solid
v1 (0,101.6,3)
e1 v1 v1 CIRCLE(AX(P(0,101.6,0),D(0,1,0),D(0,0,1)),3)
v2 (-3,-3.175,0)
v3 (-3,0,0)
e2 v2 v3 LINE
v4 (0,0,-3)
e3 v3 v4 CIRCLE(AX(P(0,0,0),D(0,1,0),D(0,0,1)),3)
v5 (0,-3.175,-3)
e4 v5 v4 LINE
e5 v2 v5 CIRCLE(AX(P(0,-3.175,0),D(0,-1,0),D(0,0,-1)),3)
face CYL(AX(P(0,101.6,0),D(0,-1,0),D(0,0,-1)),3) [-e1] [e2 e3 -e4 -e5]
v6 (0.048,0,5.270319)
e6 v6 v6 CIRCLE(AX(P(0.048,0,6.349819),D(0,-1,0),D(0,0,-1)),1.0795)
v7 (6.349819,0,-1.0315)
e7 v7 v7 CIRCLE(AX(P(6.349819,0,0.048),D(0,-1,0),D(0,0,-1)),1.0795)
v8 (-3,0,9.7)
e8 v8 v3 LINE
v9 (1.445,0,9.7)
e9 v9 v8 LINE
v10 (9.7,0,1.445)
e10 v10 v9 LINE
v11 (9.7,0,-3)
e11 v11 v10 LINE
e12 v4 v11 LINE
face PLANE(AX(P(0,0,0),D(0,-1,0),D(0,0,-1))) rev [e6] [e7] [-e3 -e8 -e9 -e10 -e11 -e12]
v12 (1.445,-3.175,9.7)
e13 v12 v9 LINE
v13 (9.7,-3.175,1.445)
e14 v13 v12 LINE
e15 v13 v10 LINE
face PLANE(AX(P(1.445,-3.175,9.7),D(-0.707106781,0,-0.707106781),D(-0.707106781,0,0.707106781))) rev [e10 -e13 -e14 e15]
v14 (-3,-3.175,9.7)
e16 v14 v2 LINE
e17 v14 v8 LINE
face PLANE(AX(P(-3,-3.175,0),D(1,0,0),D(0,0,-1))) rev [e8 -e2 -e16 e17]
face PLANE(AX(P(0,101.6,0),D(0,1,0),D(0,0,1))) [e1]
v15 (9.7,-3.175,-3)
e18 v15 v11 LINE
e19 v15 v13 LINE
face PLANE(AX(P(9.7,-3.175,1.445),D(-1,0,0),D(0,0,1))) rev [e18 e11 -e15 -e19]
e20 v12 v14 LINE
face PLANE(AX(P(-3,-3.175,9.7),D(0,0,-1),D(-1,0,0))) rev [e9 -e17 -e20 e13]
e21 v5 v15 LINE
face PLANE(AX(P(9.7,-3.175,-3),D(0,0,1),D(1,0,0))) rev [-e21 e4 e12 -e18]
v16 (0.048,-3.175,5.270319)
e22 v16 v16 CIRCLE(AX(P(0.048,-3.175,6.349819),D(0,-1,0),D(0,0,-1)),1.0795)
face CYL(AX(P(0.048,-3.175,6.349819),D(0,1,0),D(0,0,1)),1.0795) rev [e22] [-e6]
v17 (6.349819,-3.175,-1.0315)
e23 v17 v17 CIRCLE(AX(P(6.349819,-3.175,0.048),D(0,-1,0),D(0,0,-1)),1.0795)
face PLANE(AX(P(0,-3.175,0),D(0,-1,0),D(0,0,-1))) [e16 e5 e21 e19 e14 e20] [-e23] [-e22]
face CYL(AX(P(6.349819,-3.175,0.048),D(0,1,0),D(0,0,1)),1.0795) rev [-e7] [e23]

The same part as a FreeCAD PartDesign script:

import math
import FreeCAD as App
import Part
import Sketcher

V = App.Vector
Q = App.Units.Quantity

doc = App.newDocument("Part")
body = doc.addObject("PartDesign::Body", "Body")

# Sketch on XZ plane
sketch1 = body.newObject("Sketcher::SketchObject", "Sketch")
sketch1.AttachmentSupport = (doc.getObject("XZ_Plane"), [""])
sketch1.MapMode = "FlatFace"
sketch1.addGeometry(Part.Circle(V(0, 0, 0), V(0, 0, 1), 3), False)
sketch1.addConstraint(Sketcher.Constraint("Coincident", 0, 3, -1, 1))
sketch1.addConstraint(Sketcher.Constraint("Diameter", 0, Q("6 mm")))
pad1 = body.newObject("PartDesign::Pad", "Pad")
pad1.Profile = sketch1
pad1.Length = Q("4 in")
pad1.Reversed = True

# Sketch on XZ plane
sketch2 = body.newObject("Sketcher::SketchObject", "Sketch001")
sketch2.AttachmentSupport = (doc.getObject("XZ_Plane"), [""])
sketch2.MapMode = "FlatFace"
sketch2.AttachmentOffset = App.Placement(V(0, 0, 0.125 * 25.4), App.Rotation())
sketch2.addGeometry(Part.LineSegment(V(-3, 9.7, 0), V(-3, 0, 0)), False)
sketch2.addGeometry(Part.ArcOfCircle(Part.Circle(V(0, 0, 0), V(0, 0, 1), 3), math.radians(180), math.radians(270)), False)
sketch2.addGeometry(Part.LineSegment(V(0, -3, 0), V(9.7, -3, 0)), False)
sketch2.addGeometry(Part.LineSegment(V(9.7, -3, 0), V(9.7, 1.4, 0)), False)
sketch2.addGeometry(Part.LineSegment(V(9.7, 1.4, 0), V(1.4, 9.7, 0)), False)
sketch2.addGeometry(Part.LineSegment(V(1.4, 9.7, 0), V(-3, 9.7, 0)), False)
sketch2.addGeometry(Part.Circle(V(6.3, 0, 0), V(0, 0, 1), 1.1), False)
sketch2.addGeometry(Part.Circle(V(0, 6.3, 0), V(0, 0, 1), 1.1), False)
sketch2.addConstraint(Sketcher.Constraint("Tangent", 0, 2, 1, 1))
sketch2.addConstraint(Sketcher.Constraint("Tangent", 1, 2, 2, 1))
sketch2.addConstraint(Sketcher.Constraint("Coincident", 2, 2, 3, 1))
sketch2.addConstraint(Sketcher.Constraint("Coincident", 3, 2, 4, 1))
sketch2.addConstraint(Sketcher.Constraint("Coincident", 4, 2, 5, 1))
sketch2.addConstraint(Sketcher.Constraint("Coincident", 5, 2, 0, 1))
sketch2.addConstraint(Sketcher.Constraint("Vertical", 0))
sketch2.addConstraint(Sketcher.Constraint("Horizontal", 2))
sketch2.addConstraint(Sketcher.Constraint("Vertical", 3))
sketch2.addConstraint(Sketcher.Constraint("Horizontal", 5))
sketch2.addConstraint(Sketcher.Constraint("Coincident", 1, 3, -1, 1))
sketch2.addConstraint(Sketcher.Constraint("Equal", 6, 7))
sketch2.addConstraint(Sketcher.Constraint("Equal", 2, 0))
sketch2.addConstraint(Sketcher.Constraint("Equal", 5, 3))
sketch2.addConstraint(Sketcher.Constraint("Diameter", 6, Q("0.085 in")))
sketch2.addConstraint(Sketcher.Constraint("DistanceX", 0, 2, 2, 2, Q("0.5 in")))
sketch2.addConstraint(Sketcher.Constraint("DistanceX", 5, 2, 5, 1, Q("0.175 in")))
sketch2.addConstraint(Sketcher.Constraint("Radius", 1, Q("3 mm")))
sketch2.addConstraint(Sketcher.Constraint("DistanceX", 0, 2, 7, 3, Q("0.12 in")))
sketch2.addConstraint(Sketcher.Constraint("DistanceY", 1, 2, 6, 3, Q("0.12 in")))
sketch2.addConstraint(Sketcher.Constraint("DistanceX", -1, 1, 6, 3, Q("6.349819 mm")))
sketch2.addConstraint(Sketcher.Constraint("DistanceY", -1, 1, 7, 3, Q("6.349819 mm")))
pad2 = body.newObject("PartDesign::Pad", "Pad001")
pad2.Profile = sketch2
pad2.Length = Q("0.125 in")
pad2.Reversed = True

doc.recompute()
